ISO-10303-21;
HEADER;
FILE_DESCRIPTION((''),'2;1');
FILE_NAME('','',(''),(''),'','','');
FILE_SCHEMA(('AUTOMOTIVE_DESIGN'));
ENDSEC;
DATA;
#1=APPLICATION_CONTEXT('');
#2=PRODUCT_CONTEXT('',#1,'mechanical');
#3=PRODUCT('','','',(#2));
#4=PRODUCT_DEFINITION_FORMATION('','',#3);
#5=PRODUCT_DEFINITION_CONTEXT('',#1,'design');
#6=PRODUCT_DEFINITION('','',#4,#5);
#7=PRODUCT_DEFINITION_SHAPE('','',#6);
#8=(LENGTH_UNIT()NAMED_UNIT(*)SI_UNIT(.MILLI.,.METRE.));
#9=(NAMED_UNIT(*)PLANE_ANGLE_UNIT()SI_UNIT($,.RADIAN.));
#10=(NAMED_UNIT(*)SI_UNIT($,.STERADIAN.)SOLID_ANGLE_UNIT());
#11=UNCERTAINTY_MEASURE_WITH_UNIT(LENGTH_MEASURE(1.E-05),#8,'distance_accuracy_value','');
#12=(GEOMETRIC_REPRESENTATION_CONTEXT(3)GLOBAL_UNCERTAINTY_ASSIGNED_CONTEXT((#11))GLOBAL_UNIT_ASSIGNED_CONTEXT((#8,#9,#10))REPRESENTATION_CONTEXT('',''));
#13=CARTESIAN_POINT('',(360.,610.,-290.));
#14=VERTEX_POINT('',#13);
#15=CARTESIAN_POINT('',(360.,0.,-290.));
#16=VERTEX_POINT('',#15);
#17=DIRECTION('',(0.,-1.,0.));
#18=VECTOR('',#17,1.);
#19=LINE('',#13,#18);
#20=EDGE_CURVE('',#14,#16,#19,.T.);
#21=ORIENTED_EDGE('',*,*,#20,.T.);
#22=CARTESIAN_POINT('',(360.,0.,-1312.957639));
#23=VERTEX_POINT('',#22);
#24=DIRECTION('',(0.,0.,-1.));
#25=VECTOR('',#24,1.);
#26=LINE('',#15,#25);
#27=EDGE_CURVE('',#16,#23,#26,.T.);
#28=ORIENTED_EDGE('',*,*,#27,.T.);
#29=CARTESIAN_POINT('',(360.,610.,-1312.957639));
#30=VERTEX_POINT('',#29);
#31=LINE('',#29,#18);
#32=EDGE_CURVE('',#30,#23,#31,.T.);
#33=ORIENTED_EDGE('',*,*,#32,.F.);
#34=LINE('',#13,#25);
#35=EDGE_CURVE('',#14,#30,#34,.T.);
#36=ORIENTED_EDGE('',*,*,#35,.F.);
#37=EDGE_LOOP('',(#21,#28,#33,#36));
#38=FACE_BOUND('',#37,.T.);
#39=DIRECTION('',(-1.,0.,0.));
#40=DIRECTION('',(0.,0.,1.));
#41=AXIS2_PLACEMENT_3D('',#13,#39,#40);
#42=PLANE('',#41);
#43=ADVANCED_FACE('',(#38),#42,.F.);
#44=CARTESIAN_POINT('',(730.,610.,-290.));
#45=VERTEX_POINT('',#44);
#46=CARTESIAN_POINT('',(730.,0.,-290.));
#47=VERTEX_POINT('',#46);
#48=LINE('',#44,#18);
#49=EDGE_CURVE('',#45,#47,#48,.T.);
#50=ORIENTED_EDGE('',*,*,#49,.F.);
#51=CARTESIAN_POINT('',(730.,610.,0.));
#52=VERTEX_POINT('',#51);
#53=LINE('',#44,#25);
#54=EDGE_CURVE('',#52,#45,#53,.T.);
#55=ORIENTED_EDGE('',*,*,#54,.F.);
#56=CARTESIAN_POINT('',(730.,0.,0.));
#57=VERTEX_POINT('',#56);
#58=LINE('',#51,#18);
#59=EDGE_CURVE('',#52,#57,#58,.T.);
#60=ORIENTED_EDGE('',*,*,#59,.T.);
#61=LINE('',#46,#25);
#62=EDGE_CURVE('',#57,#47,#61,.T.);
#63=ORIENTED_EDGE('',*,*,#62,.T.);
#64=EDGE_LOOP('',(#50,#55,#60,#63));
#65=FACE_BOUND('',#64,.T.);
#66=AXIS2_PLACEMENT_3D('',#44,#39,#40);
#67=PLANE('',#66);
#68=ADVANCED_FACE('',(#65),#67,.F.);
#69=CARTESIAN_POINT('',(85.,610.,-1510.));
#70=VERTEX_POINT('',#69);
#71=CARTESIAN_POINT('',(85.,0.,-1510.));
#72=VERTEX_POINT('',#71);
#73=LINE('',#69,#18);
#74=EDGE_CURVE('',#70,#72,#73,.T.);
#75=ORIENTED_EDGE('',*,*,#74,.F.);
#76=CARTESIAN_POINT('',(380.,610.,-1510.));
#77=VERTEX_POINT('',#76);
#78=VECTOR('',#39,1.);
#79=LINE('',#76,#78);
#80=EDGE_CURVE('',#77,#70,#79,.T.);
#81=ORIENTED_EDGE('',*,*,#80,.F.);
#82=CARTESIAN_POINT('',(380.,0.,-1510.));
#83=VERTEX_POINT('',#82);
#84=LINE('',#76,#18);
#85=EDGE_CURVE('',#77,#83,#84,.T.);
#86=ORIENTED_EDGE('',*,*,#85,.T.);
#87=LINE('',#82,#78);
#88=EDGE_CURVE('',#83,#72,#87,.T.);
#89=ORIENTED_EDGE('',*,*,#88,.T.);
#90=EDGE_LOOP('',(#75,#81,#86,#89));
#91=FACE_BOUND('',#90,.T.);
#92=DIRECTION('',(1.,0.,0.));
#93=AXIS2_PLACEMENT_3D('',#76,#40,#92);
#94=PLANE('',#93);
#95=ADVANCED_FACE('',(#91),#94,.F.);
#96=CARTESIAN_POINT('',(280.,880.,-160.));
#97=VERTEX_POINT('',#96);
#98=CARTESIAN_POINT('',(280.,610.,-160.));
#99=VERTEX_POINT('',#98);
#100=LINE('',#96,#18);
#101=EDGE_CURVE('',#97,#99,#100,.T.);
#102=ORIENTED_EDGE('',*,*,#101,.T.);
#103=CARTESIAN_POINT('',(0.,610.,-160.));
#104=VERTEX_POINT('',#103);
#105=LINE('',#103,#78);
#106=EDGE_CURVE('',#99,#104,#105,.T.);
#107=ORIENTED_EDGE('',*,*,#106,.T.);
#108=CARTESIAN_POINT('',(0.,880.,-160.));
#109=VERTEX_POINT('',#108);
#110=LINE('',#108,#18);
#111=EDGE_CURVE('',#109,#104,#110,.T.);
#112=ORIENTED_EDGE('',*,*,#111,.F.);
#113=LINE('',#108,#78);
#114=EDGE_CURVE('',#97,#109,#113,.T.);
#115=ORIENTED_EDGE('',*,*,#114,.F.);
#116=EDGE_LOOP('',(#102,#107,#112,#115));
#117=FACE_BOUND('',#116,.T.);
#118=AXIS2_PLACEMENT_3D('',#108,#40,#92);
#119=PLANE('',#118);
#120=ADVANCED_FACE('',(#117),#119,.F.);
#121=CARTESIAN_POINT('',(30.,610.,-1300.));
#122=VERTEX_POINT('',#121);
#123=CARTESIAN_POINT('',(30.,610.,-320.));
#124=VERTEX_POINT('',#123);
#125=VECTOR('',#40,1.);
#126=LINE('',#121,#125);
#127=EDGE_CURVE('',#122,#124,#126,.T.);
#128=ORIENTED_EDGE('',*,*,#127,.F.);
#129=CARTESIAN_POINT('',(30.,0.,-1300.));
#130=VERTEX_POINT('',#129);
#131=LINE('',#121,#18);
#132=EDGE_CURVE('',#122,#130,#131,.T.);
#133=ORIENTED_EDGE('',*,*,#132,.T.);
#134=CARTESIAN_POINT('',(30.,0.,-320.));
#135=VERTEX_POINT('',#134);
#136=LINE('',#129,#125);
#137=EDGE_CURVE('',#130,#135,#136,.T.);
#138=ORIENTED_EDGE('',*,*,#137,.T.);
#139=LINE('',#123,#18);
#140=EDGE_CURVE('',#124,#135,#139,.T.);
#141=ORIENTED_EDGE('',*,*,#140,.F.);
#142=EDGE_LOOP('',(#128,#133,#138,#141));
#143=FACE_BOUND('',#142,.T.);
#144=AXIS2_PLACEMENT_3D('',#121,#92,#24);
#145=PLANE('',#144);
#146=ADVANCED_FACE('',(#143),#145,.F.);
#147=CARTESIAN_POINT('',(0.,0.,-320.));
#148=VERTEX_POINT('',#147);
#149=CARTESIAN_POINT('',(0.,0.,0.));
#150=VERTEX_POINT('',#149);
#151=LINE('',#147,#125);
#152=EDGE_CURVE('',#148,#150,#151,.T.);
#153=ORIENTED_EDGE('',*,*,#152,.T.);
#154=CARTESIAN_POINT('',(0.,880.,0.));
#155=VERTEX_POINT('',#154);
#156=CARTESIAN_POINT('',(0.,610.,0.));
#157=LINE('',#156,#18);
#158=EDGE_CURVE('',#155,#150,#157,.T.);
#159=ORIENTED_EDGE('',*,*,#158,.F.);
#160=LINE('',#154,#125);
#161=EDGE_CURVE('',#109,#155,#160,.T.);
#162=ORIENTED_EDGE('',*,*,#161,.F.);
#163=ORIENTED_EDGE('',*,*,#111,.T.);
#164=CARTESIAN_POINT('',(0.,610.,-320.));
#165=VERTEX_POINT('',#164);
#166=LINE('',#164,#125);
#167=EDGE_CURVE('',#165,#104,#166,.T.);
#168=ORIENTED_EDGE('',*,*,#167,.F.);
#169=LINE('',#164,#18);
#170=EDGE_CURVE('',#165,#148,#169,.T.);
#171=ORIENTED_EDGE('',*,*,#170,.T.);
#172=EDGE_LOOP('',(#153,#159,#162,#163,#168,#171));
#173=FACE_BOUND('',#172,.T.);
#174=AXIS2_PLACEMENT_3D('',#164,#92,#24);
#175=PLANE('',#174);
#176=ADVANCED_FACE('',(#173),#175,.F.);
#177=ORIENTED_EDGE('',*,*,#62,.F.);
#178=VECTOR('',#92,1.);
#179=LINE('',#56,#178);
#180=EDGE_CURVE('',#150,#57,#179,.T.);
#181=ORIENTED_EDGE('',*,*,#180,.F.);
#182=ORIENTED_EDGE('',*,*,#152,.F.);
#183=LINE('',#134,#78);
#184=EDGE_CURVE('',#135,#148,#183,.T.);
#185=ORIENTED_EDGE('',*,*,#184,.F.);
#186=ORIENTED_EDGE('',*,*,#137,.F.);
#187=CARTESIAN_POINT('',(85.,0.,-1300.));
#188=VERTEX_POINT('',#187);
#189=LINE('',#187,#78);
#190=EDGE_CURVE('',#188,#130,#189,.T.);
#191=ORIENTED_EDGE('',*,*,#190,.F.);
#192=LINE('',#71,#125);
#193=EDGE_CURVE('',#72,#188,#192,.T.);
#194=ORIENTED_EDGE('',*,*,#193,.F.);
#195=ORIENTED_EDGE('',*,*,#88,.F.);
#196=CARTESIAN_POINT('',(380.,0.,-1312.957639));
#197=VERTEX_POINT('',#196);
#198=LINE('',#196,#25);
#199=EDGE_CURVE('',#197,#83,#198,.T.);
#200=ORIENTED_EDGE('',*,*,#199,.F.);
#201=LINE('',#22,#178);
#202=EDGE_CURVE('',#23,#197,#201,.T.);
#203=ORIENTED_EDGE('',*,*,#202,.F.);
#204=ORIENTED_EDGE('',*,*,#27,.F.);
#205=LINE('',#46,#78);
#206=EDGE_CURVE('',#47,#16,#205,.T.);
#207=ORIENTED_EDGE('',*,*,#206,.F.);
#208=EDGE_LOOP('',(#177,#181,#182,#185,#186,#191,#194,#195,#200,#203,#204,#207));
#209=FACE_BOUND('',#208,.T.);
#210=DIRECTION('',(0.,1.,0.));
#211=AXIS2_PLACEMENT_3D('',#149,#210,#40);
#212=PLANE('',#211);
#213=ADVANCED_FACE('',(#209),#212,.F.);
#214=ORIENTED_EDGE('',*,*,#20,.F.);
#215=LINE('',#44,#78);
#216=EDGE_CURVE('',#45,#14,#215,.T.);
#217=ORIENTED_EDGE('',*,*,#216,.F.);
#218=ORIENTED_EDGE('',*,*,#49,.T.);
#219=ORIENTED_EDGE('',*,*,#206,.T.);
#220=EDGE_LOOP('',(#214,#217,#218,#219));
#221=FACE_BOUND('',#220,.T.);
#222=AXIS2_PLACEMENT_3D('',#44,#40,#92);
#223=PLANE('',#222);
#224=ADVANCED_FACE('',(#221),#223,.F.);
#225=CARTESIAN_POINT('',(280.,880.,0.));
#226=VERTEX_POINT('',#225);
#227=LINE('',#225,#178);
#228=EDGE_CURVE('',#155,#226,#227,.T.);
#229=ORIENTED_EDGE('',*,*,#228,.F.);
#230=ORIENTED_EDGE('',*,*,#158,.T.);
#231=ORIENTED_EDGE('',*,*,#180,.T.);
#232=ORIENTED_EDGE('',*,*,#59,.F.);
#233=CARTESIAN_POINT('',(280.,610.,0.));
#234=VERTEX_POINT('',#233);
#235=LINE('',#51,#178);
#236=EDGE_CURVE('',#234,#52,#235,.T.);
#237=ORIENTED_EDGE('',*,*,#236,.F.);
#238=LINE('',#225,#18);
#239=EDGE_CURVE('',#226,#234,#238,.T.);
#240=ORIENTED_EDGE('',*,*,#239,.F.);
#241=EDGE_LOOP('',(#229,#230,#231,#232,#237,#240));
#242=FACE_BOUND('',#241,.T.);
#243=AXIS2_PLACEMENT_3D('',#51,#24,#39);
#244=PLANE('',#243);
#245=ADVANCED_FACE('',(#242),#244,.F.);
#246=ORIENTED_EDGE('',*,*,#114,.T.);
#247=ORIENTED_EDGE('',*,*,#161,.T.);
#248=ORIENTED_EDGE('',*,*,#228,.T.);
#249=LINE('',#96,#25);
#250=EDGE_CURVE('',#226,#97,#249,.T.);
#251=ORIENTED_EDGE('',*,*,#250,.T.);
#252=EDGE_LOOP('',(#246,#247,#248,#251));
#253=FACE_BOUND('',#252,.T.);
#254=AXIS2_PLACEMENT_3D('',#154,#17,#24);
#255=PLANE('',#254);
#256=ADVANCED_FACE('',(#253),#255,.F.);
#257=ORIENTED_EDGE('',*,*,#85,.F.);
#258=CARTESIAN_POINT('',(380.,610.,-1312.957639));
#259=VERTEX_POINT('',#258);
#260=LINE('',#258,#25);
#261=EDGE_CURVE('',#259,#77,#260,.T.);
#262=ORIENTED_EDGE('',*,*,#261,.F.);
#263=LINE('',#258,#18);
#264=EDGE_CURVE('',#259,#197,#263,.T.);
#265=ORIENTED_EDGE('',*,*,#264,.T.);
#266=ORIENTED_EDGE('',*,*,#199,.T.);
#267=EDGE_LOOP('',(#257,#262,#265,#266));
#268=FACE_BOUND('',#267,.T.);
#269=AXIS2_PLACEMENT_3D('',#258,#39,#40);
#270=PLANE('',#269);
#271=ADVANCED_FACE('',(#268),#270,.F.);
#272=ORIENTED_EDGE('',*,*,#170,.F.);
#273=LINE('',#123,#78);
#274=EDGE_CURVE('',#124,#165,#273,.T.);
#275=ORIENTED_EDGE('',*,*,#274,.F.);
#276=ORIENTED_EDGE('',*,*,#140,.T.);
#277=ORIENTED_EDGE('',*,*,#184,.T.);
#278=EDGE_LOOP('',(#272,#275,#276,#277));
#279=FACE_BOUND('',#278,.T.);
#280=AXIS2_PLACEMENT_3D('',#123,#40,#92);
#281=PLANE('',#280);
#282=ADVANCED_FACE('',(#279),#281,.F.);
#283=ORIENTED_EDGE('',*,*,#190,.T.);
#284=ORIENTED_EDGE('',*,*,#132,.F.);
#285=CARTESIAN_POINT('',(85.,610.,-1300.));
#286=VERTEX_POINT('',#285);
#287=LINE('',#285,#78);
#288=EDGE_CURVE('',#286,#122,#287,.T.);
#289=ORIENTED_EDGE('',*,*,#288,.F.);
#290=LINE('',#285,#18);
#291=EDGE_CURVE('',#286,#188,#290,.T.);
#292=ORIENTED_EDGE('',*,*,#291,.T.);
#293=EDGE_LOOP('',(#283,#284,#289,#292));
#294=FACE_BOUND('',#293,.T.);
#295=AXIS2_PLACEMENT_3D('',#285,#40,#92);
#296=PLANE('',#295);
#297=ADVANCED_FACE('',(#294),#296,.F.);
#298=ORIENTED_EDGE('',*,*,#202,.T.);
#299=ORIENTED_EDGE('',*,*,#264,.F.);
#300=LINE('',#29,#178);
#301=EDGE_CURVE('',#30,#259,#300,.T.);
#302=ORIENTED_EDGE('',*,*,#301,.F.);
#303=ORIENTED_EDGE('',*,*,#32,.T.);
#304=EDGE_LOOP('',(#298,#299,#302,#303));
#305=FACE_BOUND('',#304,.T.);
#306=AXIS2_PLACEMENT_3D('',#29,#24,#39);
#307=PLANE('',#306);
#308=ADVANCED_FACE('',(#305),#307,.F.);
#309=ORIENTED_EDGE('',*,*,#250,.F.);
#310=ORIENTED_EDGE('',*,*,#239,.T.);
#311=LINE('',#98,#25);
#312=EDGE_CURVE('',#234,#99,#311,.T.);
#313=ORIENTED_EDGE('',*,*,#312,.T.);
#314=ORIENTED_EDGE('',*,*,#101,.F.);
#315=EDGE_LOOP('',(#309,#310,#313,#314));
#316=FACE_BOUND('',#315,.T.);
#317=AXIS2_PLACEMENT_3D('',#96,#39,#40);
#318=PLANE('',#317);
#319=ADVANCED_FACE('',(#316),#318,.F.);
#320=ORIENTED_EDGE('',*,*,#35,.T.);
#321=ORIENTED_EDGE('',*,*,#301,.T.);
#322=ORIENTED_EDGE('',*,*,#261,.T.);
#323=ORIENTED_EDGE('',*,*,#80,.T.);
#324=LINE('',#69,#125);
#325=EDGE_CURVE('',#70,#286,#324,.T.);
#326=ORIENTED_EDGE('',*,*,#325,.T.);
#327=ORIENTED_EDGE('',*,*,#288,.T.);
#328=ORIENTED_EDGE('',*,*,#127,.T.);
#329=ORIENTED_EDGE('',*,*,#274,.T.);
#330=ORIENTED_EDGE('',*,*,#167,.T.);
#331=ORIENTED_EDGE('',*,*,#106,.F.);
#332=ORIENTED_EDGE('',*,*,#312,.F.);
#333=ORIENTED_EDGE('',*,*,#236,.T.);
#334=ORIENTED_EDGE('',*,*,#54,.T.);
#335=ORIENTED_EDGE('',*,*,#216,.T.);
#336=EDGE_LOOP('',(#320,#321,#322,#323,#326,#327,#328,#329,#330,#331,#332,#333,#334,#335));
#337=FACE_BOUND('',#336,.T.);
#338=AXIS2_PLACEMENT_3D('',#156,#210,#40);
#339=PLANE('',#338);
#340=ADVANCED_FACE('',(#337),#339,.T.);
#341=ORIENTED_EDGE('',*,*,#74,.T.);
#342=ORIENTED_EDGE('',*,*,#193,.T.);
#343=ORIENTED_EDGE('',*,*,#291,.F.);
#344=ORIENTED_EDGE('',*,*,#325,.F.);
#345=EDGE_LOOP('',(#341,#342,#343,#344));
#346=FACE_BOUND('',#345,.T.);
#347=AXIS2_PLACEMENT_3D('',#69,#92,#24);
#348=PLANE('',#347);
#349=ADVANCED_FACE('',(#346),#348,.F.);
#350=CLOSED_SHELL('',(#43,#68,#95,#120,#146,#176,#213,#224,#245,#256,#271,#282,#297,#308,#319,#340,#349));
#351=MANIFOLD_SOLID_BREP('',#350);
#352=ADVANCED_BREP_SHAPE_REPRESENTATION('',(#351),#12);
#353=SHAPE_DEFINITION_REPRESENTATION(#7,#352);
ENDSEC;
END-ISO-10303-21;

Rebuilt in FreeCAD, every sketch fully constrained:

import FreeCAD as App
import Part
import Sketcher
from FreeCAD import Vector
Q = App.Units.Quantity

doc = App.newDocument("Part")
body = doc.addObject("PartDesign::Body", "Body")

sketch1 = body.newObject("Sketcher::SketchObject", "Sketch")
sketch1.AttachmentSupport = (doc.getObject("XZ_Plane"), [""])
sketch1.MapMode = "FlatFace"
sketch1.addGeometry(Part.LineSegment(Vector(730, -290, 0), Vector(360, -290, 0)), False)
sketch1.addGeometry(Part.LineSegment(Vector(360, -290, 0), Vector(360, -1313, 0)), False)
sketch1.addGeometry(Part.LineSegment(Vector(360, -1313, 0), Vector(380, -1313, 0)), False)
sketch1.addGeometry(Part.LineSegment(Vector(380, -1313, 0), Vector(380, -1510, 0)), False)
sketch1.addGeometry(Part.LineSegment(Vector(380, -1510, 0), Vector(85, -1510, 0)), False)
sketch1.addGeometry(Part.LineSegment(Vector(85, -1510, 0), Vector(85, -1300, 0)), False)
sketch1.addGeometry(Part.LineSegment(Vector(85, -1300, 0), Vector(30, -1300, 0)), False)
sketch1.addGeometry(Part.LineSegment(Vector(30, -1300, 0), Vector(30, -320, 0)), False)
sketch1.addGeometry(Part.LineSegment(Vector(30, -320, 0), Vector(0, -320, 0)), False)
sketch1.addGeometry(Part.LineSegment(Vector(0, -320, 0), Vector(0, 0, 0)), False)
sketch1.addGeometry(Part.LineSegment(Vector(0, 0, 0), Vector(730, 0, 0)), False)
sketch1.addGeometry(Part.LineSegment(Vector(730, 0, 0), Vector(730, -290, 0)), False)
sketch1.addConstraint(Sketcher.Constraint("Coincident", 0, 2, 1, 1))
sketch1.addConstraint(Sketcher.Constraint("Coincident", 1, 2, 2, 1))
sketch1.addConstraint(Sketcher.Constraint("Coincident", 2, 2, 3, 1))
sketch1.addConstraint(Sketcher.Constraint("Coincident", 3, 2, 4, 1))
sketch1.addConstraint(Sketcher.Constraint("Coincident", 4, 2, 5, 1))
sketch1.addConstraint(Sketcher.Constraint("Coincident", 5, 2, 6, 1))
sketch1.addConstraint(Sketcher.Constraint("Coincident", 6, 2, 7, 1))
sketch1.addConstraint(Sketcher.Constraint("Coincident", 7, 2, 8, 1))
sketch1.addConstraint(Sketcher.Constraint("Coincident", 8, 2, 9, 1))
sketch1.addConstraint(Sketcher.Constraint("Coincident", 9, 2, 10, 1))
sketch1.addConstraint(Sketcher.Constraint("Coincident", 10, 2, 11, 1))
sketch1.addConstraint(Sketcher.Constraint("Coincident", 11, 2, 0, 1))
sketch1.addConstraint(Sketcher.Constraint("Horizontal", 0))
sketch1.addConstraint(Sketcher.Constraint("Vertical", 1))
sketch1.addConstraint(Sketcher.Constraint("Horizontal", 2))
sketch1.addConstraint(Sketcher.Constraint("Vertical", 3))
sketch1.addConstraint(Sketcher.Constraint("Horizontal", 4))
sketch1.addConstraint(Sketcher.Constraint("Vertical", 5))
sketch1.addConstraint(Sketcher.Constraint("Horizontal", 6))
sketch1.addConstraint(Sketcher.Constraint("Vertical", 7))
sketch1.addConstraint(Sketcher.Constraint("Horizontal", 8))
sketch1.addConstraint(Sketcher.Constraint("Vertical", 9))
sketch1.addConstraint(Sketcher.Constraint("Horizontal", 10))
sketch1.addConstraint(Sketcher.Constraint("Vertical", 11))
sketch1.addConstraint(Sketcher.Constraint("Coincident", 9, 2, -1, 1))
sketch1.addConstraint(Sketcher.Constraint("DistanceX", 0, 2, 0, 1, Q("370 mm")))
sketch1.addConstraint(Sketcher.Constraint("DistanceX", 2, 1, 2, 2, Q("20 mm")))
sketch1.addConstraint(Sketcher.Constraint("DistanceX", 4, 2, 4, 1, Q("295 mm")))
sketch1.addConstraint(Sketcher.Constraint("DistanceX", 6, 2, 6, 1, Q("55 mm")))
sketch1.addConstraint(Sketcher.Constraint("DistanceX", 8, 2, 8, 1, Q("30 mm")))
sketch1.addConstraint(Sketcher.Constraint("DistanceY", 5, 1, 5, 2, Q("210 mm")))
sketch1.addConstraint(Sketcher.Constraint("DistanceY", 7, 1, 7, 2, Q("980 mm")))
sketch1.addConstraint(Sketcher.Constraint("DistanceY", 9, 1, 9, 2, Q("320 mm")))
sketch1.addConstraint(Sketcher.Constraint("DistanceY", 11, 2, 11, 1, Q("290 mm")))
sketch1.addConstraint(Sketcher.Constraint("DistanceY", 1, 2, 1, 1, Q("1022.957639 mm")))
pad1 = body.newObject("PartDesign::Pad", "Pad")
pad1.Profile = sketch1
pad1.Length = 610
pad1.Reversed = True

sketch2 = body.newObject("Sketcher::SketchObject", "Sketch001")
sketch2.AttachmentSupport = (doc.getObject("XZ_Plane"), [""])
sketch2.MapMode = "FlatFace"
sketch2.AttachmentOffset = App.Placement(Vector(0, 0, -610), App.Rotation())
sketch2.addGeometry(Part.LineSegment(Vector(0, -160, 0), Vector(0, 0, 0)), False)
sketch2.addGeometry(Part.LineSegment(Vector(0, 0, 0), Vector(280, 0, 0)), False)
sketch2.addGeometry(Part.LineSegment(Vector(280, 0, 0), Vector(280, -160, 0)), False)
sketch2.addGeometry(Part.LineSegment(Vector(280, -160, 0), Vector(0, -160, 0)), False)
sketch2.addConstraint(Sketcher.Constraint("Coincident", 0, 2, 1, 1))
sketch2.addConstraint(Sketcher.Constraint("Coincident", 1, 2, 2, 1))
sketch2.addConstraint(Sketcher.Constraint("Coincident", 2, 2, 3, 1))
sketch2.addConstraint(Sketcher.Constraint("Coincident", 3, 2, 0, 1))
sketch2.addConstraint(Sketcher.Constraint("Vertical", 0))
sketch2.addConstraint(Sketcher.Constraint("Horizontal", 1))
sketch2.addConstraint(Sketcher.Constraint("Vertical", 2))
sketch2.addConstraint(Sketcher.Constraint("Horizontal", 3))
sketch2.addConstraint(Sketcher.Constraint("Coincident", 0, 2, -1, 1))
sketch2.addConstraint(Sketcher.Constraint("DistanceX", 1, 1, 1, 2, Q("280 mm")))
sketch2.addConstraint(Sketcher.Constraint("DistanceY", 0, 1, 0, 2, Q("160 mm")))
pad2 = body.newObject("PartDesign::Pad", "Pad001")
pad2.Profile = sketch2
pad2.Length = 270
pad2.Reversed = True

doc.recompute()
